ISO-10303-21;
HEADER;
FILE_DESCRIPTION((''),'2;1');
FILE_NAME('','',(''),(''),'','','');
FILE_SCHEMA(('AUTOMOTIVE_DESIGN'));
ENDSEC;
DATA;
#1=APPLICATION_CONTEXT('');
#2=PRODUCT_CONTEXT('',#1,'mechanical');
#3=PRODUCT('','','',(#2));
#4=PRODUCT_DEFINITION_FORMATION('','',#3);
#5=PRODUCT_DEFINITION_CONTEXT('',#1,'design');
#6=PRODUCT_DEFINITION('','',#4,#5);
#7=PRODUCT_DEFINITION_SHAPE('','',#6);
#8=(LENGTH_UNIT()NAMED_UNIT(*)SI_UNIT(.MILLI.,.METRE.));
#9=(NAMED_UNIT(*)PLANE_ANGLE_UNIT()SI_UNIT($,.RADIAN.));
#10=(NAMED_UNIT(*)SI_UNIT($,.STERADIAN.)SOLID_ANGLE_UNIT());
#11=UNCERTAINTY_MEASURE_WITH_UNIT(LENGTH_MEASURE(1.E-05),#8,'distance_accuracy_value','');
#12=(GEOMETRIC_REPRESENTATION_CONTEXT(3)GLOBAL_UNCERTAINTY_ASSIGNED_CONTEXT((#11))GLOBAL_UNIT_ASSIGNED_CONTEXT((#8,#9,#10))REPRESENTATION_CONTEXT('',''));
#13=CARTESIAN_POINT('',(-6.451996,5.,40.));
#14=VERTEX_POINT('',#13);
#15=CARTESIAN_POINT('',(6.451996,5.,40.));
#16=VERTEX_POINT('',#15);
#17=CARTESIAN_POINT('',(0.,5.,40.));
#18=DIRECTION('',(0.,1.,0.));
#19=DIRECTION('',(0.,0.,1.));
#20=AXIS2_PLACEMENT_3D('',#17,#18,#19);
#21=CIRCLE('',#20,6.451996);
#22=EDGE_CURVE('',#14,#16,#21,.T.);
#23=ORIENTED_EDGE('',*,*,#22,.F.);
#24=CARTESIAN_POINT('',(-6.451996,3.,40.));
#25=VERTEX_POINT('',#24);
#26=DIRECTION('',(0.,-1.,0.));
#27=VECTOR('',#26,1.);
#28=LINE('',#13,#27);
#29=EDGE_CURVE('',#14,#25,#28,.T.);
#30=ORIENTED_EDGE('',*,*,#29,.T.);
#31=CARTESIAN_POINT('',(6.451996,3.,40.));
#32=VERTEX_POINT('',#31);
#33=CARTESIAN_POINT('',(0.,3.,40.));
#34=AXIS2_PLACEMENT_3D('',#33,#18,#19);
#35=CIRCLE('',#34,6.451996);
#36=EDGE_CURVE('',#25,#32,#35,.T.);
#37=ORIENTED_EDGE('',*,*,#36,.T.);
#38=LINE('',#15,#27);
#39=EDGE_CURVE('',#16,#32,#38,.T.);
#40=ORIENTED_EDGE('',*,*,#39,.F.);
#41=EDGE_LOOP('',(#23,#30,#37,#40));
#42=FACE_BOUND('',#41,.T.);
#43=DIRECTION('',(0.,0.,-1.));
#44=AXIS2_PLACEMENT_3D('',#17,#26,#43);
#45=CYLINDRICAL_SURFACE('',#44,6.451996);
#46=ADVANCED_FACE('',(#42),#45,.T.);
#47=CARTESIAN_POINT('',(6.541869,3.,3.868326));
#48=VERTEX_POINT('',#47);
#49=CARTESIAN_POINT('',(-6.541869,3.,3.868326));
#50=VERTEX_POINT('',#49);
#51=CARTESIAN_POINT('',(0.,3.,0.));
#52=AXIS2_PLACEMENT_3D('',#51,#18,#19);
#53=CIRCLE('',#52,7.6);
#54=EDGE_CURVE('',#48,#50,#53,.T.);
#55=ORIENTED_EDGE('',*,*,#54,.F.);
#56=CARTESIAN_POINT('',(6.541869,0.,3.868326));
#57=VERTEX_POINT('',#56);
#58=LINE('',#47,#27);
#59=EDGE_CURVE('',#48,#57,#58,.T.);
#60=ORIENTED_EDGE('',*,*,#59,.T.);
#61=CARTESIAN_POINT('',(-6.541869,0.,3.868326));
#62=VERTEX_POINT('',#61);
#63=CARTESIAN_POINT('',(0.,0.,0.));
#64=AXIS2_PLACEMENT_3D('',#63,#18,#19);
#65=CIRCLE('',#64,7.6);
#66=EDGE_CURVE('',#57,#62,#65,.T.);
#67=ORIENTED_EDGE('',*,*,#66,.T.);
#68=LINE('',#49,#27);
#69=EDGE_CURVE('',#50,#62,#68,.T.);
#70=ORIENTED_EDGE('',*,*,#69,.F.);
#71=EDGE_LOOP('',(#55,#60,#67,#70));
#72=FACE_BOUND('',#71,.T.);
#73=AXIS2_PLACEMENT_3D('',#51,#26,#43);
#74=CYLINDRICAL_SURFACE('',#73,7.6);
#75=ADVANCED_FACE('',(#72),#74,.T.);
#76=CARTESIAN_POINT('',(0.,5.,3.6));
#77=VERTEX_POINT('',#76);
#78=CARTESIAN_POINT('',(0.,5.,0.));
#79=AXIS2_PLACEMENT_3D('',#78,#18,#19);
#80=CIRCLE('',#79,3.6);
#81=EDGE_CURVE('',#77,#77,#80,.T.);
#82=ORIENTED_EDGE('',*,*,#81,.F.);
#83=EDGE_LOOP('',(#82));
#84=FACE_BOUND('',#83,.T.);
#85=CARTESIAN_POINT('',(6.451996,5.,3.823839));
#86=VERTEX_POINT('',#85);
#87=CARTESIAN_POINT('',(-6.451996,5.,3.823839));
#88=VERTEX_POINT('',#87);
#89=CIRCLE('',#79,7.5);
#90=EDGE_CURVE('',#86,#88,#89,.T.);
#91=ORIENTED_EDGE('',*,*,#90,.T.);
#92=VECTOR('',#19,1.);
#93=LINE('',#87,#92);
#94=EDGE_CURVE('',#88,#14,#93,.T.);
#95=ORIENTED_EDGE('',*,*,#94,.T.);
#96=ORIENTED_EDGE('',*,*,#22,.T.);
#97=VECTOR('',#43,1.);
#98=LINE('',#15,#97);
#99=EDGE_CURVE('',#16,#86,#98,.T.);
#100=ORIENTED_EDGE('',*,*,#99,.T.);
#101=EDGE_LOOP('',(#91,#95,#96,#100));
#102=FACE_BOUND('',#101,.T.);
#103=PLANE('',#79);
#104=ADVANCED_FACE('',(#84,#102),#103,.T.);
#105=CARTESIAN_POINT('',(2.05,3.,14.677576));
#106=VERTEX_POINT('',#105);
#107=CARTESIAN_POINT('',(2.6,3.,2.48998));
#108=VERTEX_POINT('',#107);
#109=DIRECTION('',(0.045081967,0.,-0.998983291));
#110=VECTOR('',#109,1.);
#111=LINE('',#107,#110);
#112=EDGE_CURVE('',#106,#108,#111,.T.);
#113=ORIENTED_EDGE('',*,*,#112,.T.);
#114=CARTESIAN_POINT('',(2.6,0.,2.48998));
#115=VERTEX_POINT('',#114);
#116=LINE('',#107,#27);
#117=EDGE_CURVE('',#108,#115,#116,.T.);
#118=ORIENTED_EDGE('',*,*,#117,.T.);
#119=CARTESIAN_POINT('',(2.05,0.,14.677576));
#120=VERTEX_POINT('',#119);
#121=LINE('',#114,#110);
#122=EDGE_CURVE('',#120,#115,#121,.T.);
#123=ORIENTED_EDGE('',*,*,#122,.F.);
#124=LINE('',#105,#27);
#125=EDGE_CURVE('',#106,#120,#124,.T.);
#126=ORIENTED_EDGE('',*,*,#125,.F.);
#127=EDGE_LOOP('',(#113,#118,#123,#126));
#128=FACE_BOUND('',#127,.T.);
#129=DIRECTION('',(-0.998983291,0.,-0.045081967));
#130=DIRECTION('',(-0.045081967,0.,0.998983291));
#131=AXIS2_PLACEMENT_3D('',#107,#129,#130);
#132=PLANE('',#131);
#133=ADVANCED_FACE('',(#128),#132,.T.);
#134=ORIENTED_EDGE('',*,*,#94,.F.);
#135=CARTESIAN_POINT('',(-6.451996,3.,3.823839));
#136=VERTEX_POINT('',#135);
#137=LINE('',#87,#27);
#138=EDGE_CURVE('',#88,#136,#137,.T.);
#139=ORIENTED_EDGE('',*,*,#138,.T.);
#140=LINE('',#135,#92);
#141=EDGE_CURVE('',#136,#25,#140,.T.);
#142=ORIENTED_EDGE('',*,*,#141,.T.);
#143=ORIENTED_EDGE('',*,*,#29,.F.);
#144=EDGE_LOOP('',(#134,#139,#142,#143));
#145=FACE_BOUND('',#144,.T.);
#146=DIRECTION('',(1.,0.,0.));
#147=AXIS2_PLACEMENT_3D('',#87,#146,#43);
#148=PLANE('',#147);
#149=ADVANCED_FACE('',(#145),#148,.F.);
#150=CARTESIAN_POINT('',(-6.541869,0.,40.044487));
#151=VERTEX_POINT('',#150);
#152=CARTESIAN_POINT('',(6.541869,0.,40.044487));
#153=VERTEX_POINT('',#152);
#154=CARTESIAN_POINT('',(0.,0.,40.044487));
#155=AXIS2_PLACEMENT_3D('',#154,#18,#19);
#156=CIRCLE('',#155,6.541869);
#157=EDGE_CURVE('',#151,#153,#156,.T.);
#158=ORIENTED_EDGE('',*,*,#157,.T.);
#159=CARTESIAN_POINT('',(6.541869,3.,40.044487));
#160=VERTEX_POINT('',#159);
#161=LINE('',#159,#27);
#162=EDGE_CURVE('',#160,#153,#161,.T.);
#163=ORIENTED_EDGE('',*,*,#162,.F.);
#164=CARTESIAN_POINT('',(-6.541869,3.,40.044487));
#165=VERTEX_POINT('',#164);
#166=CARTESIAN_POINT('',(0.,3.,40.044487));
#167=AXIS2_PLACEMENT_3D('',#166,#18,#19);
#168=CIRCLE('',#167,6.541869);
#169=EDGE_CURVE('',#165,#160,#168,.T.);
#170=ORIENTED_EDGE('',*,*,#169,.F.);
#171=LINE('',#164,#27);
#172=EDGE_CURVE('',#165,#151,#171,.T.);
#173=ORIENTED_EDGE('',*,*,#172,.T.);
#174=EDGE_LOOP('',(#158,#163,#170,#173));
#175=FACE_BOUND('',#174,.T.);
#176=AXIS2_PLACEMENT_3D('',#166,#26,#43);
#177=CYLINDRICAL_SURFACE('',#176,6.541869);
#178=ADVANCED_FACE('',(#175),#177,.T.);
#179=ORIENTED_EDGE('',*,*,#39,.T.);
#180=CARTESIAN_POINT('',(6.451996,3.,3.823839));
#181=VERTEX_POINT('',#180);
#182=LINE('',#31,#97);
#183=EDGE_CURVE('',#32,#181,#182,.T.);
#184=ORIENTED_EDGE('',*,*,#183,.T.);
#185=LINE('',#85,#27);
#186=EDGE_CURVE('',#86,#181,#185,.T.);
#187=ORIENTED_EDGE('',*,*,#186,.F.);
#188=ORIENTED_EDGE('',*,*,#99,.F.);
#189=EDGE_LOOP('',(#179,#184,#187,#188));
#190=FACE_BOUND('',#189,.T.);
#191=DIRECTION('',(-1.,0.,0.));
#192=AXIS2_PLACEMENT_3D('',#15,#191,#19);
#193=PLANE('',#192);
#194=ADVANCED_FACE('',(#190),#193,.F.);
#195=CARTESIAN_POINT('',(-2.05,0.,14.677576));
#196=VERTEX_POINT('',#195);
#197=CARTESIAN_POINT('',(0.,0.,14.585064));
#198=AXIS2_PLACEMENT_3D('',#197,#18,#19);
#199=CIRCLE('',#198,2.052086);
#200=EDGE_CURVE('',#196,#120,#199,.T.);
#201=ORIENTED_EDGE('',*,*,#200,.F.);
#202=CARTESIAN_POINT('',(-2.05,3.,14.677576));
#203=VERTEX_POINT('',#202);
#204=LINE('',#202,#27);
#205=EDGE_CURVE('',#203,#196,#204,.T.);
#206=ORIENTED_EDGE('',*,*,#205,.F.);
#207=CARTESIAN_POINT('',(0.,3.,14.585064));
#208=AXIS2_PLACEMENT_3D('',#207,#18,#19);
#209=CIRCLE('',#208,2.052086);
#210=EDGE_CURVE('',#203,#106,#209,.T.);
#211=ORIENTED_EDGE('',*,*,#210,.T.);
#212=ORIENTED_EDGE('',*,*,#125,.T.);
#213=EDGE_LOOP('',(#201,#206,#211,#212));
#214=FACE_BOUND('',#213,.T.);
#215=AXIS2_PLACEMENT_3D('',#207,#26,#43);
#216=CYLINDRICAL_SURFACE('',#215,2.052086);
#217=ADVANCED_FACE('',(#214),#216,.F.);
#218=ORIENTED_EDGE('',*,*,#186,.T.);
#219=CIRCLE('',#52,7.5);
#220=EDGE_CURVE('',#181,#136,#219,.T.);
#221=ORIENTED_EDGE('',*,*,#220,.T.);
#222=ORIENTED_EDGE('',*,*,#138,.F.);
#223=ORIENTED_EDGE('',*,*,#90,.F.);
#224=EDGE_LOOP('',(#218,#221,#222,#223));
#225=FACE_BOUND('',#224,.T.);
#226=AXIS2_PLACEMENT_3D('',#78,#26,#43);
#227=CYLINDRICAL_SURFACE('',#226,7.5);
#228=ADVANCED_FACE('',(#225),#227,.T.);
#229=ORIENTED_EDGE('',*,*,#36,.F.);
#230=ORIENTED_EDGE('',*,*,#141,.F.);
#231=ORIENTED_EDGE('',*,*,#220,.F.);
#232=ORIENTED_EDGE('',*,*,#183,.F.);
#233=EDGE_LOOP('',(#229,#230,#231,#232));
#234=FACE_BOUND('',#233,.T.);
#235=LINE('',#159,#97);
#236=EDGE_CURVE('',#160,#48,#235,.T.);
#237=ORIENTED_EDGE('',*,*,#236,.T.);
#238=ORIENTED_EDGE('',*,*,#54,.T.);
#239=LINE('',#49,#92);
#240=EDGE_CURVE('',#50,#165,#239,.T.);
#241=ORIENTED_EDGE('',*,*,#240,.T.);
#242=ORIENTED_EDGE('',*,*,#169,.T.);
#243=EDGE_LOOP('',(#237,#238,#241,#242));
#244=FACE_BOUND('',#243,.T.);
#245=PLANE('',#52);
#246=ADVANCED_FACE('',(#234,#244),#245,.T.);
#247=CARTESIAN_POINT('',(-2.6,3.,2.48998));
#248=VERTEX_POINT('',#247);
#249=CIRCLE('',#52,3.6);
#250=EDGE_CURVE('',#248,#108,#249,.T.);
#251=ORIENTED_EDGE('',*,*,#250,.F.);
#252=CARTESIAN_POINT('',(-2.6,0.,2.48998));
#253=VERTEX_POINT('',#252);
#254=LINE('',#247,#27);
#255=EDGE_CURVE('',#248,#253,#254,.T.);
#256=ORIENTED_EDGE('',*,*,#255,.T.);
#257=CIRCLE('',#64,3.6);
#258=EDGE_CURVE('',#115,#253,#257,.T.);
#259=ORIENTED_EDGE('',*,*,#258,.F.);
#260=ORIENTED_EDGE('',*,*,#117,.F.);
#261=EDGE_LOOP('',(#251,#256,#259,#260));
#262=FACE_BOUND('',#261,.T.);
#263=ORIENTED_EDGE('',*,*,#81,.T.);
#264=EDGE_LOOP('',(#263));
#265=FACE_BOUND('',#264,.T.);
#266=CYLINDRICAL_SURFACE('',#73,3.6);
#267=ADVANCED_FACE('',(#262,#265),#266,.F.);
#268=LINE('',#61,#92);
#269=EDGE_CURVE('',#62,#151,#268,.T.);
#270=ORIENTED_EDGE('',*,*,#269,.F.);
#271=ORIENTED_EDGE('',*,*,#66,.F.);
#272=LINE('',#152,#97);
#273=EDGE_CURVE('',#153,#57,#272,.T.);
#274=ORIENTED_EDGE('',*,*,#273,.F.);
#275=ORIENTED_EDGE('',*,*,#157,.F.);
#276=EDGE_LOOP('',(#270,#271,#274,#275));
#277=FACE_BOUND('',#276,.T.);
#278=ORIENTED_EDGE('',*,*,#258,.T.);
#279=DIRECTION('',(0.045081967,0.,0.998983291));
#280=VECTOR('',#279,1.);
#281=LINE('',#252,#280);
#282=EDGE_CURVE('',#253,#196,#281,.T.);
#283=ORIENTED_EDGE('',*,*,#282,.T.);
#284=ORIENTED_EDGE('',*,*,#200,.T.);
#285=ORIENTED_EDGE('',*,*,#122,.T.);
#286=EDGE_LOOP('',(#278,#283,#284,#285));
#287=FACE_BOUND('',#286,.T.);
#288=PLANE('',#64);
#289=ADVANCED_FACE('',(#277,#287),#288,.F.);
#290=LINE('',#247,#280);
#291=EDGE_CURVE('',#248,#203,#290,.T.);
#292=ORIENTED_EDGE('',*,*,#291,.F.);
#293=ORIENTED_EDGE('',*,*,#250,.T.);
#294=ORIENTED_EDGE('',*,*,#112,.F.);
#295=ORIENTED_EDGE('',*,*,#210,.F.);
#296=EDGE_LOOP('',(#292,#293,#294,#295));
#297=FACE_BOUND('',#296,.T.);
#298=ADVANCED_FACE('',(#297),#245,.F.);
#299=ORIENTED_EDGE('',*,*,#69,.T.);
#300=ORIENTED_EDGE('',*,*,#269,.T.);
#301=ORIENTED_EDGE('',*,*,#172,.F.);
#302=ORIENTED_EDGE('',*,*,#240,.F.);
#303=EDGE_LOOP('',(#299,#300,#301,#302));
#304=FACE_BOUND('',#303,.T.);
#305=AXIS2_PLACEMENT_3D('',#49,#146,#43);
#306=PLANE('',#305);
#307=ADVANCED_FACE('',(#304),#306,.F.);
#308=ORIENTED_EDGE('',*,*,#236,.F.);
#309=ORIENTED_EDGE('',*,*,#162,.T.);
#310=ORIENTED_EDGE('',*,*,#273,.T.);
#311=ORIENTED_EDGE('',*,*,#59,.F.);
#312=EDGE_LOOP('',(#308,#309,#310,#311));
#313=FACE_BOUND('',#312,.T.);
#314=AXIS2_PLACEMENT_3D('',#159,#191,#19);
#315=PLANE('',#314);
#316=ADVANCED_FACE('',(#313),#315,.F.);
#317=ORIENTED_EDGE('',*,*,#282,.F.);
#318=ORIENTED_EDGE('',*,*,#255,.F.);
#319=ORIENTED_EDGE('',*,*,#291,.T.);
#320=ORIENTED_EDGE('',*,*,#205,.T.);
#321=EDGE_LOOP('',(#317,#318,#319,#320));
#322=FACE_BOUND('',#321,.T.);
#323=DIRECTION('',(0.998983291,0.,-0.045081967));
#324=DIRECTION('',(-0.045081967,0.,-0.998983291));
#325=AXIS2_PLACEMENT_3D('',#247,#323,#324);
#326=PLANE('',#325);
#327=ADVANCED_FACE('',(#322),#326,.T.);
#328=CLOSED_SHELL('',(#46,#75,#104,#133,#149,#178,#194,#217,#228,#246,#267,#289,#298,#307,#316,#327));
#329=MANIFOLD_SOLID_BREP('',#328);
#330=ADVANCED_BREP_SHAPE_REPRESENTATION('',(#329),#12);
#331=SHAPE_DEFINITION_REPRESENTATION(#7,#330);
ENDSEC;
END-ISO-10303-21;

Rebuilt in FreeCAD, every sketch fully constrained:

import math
import FreeCAD as App
import Part
import Sketcher
Q = App.Units.Quantity

doc = App.newDocument("Part")
params = doc.addObject("Spreadsheet::Sheet", "Params")
for row, (alias, value) in enumerate([
    ("sketch1_radius", "7.6 mm"),
    ("sketch1_radius2", "3.6 mm"),
    ("sketch1_length", "12.2 mm"),
    ("pad1_length", "3 mm"),
    ("sketch2_diameter", "7.2 mm"),
    ("sketch2_radius", "7.5 mm"),
    ("pad2_length", "2 mm"),
], start=1):
    params.set(f"A{row}", alias)
    params.set(f"B{row}", "=" + value)
    params.setAlias(f"B{row}", alias)

body = doc.addObject("PartDesign::Body", "Body")

# Sketch on XZ plane
sketch1 = doc.addObject("Sketcher::SketchObject", "Sketch")
body.addObject(sketch1)
sketch1.AttachmentSupport = (doc.XZ_Plane, [""])
sketch1.MapMode = "FlatFace"
sketch1.addGeometry(Part.LineSegment(App.Vector(-6.5, 3.9, 0), App.Vector(-6.5, 40, 0)), False)
sketch1.addGeometry(Part.ArcOfCircle(Part.Circle(App.Vector(0, 40, 0), App.Vector(0, 0, 1), 6.5), math.radians(0), math.radians(180)), False)
sketch1.addGeometry(Part.LineSegment(App.Vector(6.5, 40, 0), App.Vector(6.5, 3.9, 0)), False)
sketch1.addGeometry(Part.ArcOfCircle(Part.Circle(App.Vector(0, 0, 0), App.Vector(0, 0, 1), 7.6), math.radians(149), math.radians(391)), False)
sketch1.addGeometry(Part.LineSegment(App.Vector(-2, 14.7, 0), App.Vector(-2.6, 2.5, 0)), False)
sketch1.addGeometry(Part.ArcOfCircle(Part.Circle(App.Vector(0, 0, 0), App.Vector(0, 0, 1), 3.6), math.radians(136), math.radians(404)), False)
sketch1.addGeometry(Part.LineSegment(App.Vector(2.6, 2.5, 0), App.Vector(2, 14.7, 0)), False)
sketch1.addGeometry(Part.ArcOfCircle(Part.Circle(App.Vector(0, 14.6, 0), App.Vector(0, 0, 1), 2.1), math.radians(3), math.radians(177)), False)
sketch1.addConstraint(Sketcher.Constraint("Tangent", 0, 2, 1, 2))
sketch1.addConstraint(Sketcher.Constraint("Tangent", 1, 1, 2, 1))
sketch1.addConstraint(Sketcher.Constraint("Coincident", 2, 2, 3, 2))
sketch1.addConstraint(Sketcher.Constraint("Coincident", 3, 1, 0, 1))
sketch1.addConstraint(Sketcher.Constraint("Coincident", 4, 2, 5, 1))
sketch1.addConstraint(Sketcher.Constraint("Coincident", 5, 2, 6, 1))
sketch1.addConstraint(Sketcher.Constraint("Tangent", 6, 2, 7, 1))
sketch1.addConstraint(Sketcher.Constraint("Tangent", 7, 2, 4, 1))
sketch1.addConstraint(Sketcher.Constraint("Vertical", 0))
sketch1.addConstraint(Sketcher.Constraint("Vertical", 2))
sketch1.addConstraint(Sketcher.Constraint("Coincident", 3, 3, -1, 1))
sketch1.addConstraint(Sketcher.Constraint("Coincident", 5, 3, -1, 1))
sketch1.addConstraint(Sketcher.Constraint("Symmetric", 6, 2, 7, 2, -2))
sketch1.addConstraint(Sketcher.Constraint("PointOnObject", 1, 3, -2))
sketch1.addConstraint(Sketcher.Constraint("Radius", 3, Q("7.6 mm")))
sketch1.addConstraint(Sketcher.Constraint("Radius", 5, Q("3.6 mm")))
sketch1.addConstraint(Sketcher.Constraint("Distance", 4, Q("12.2 mm")))
sketch1.addConstraint(Sketcher.Constraint("DistanceX", 4, 2, -1, 1, Q("2.6 mm")))
sketch1.addConstraint(Sketcher.Constraint("DistanceX", 7, 2, 6, 2, Q("4.1 mm")))
sketch1.addConstraint(Sketcher.Constraint("Radius", 1, Q("6.541869 mm")))
sketch1.addConstraint(Sketcher.Constraint("DistanceY", 0, 1, 0, 2, Q("36.176161 mm")))
sketch1.setExpression("Constraints[14]", "Params.sketch1_radius")
sketch1.setExpression("Constraints[15]", "Params.sketch1_radius2")
sketch1.setExpression("Constraints[16]", "Params.sketch1_length")
pad1 = doc.addObject("PartDesign::Pad", "Pad")
body.addObject(pad1)
pad1.Profile = sketch1
pad1.setExpression("Length", "Params.pad1_length")
pad1.Reversed = True

# Sketch on XZ plane
sketch2 = doc.addObject("Sketcher::SketchObject", "Sketch001")
body.addObject(sketch2)
sketch2.AttachmentSupport = (doc.XZ_Plane, [""])
sketch2.MapMode = "FlatFace"
sketch2.AttachmentOffset = App.Placement(App.Vector(0, 0, -3), App.Rotation())
sketch2.addGeometry(Part.LineSegment(App.Vector(-6.5, 3.8, 0), App.Vector(-6.5, 40, 0)), False)
sketch2.addGeometry(Part.ArcOfCircle(Part.Circle(App.Vector(0, 40, 0), App.Vector(0, 0, 1), 6.5), math.radians(0), math.radians(180)), False)
sketch2.addGeometry(Part.LineSegment(App.Vector(6.5, 40, 0), App.Vector(6.5, 3.8, 0)), False)
sketch2.addGeometry(Part.ArcOfCircle(Part.Circle(App.Vector(0, 0, 0), App.Vector(0, 0, 1), 7.5), math.radians(149), math.radians(391)), False)
sketch2.addGeometry(Part.Circle(App.Vector(0, 0, 0), App.Vector(0, 0, 1), 3.6), False)
sketch2.addConstraint(Sketcher.Constraint("Tangent", 0, 2, 1, 2))
sketch2.addConstraint(Sketcher.Constraint("Tangent", 1, 1, 2, 1))
sketch2.addConstraint(Sketcher.Constraint("Coincident", 2, 2, 3, 2))
sketch2.addConstraint(Sketcher.Constraint("Coincident", 3, 1, 0, 1))
sketch2.addConstraint(Sketcher.Constraint("Vertical", 0))
sketch2.addConstraint(Sketcher.Constraint("Vertical", 2))
sketch2.addConstraint(Sketcher.Constraint("Coincident", 3, 3, -1, 1))
sketch2.addConstraint(Sketcher.Constraint("Coincident", 4, 3, -1, 1))
sketch2.addConstraint(Sketcher.Constraint("PointOnObject", 1, 3, -2))
sketch2.addConstraint(Sketcher.Constraint("Diameter", 4, Q("7.2 mm")))
sketch2.addConstraint(Sketcher.Constraint("Radius", 3, Q("7.5 mm")))
sketch2.addConstraint(Sketcher.Constraint("DistanceY", -1, 1, 1, 3, Q("40 mm")))
sketch2.addConstraint(Sketcher.Constraint("Radius", 1, Q("6.451996 mm")))
sketch2.setExpression("Constraints[9]", "Params.sketch2_diameter")
sketch2.setExpression("Constraints[10]", "Params.sketch2_radius")
pad2 = doc.addObject("PartDesign::Pad", "Pad001")
body.addObject(pad2)
pad2.Profile = sketch2
pad2.setExpression("Length", "Params.pad2_length")
pad2.Reversed = True

doc.recompute()
